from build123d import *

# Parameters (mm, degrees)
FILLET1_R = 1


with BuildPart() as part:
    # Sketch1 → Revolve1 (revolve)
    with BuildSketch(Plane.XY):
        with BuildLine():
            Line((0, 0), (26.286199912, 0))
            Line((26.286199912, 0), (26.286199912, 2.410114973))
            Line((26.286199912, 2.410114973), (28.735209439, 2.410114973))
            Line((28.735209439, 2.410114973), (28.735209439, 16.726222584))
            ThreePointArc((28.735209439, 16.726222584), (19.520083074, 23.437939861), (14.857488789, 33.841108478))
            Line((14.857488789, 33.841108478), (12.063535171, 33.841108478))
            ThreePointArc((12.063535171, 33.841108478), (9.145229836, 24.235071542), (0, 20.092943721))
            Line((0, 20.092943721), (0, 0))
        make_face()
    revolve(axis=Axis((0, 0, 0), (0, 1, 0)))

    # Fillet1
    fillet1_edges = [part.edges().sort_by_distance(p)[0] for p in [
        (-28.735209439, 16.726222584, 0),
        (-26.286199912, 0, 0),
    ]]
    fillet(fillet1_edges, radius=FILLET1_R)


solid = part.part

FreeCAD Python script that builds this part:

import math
import FreeCAD as App
import Part
import Sketcher

V = App.Vector


def edges_at(feature, points):
    """Names of the edges that pass closest to the given points."""
    edges = feature.Shape.Edges
    near = lambda p: min(range(len(edges)), key=lambda i: edges[i].distToShape(Part.Vertex(*p))[0])
    return sorted({f"Edge{near(p) + 1}" for p in points})

doc = App.newDocument("Part")
body = doc.addObject("PartDesign::Body", "Body")

# Sketch on XY plane
sketch1 = doc.addObject("Sketcher::SketchObject", "Sketch")
body.addObject(sketch1)
sketch1.AttachmentSupport = (doc.XY_Plane, [""])
sketch1.MapMode = "FlatFace"
sketch1.addGeometry([
    Part.LineSegment(V(0, 0, 0), V(26.3, 0, 0)),  # 0
    Part.LineSegment(V(26.3, 0, 0), V(26.3, 2.4, 0)),  # 1
    Part.LineSegment(V(26.3, 2.4, 0), V(28.7, 2.4, 0)),  # 2
    Part.LineSegment(V(28.7, 2.4, 0), V(28.7, 16.7, 0)),  # 3
    Part.ArcOfCircle(Part.Circle(V(36.7, 37.4, 0), V(0, 0, 1), 22.2), math.radians(-171), math.radians(-111)),  # 4
    Part.LineSegment(V(14.9, 33.8, 0), V(12.1, 33.8, 0)),  # 5
    Part.ArcOfCircle(Part.Circle(V(0, 32.3, 0), V(0, 0, 1), 12.2), math.radians(-90), math.radians(7)),  # 6
    Part.LineSegment(V(0, 20.1, 0), V(0, 0, 0)),  # 7
], False)
sketch1.addConstraint([
    Sketcher.Constraint("Coincident", 0, 2, 1, 1),
    Sketcher.Constraint("Coincident", 1, 2, 2, 1),
    Sketcher.Constraint("Coincident", 2, 2, 3, 1),
    Sketcher.Constraint("Coincident", 3, 2, 4, 2),
    Sketcher.Constraint("Coincident", 4, 1, 5, 1),
    Sketcher.Constraint("Coincident", 5, 2, 6, 2),
    Sketcher.Constraint("Coincident", 6, 1, 7, 1),
    Sketcher.Constraint("Coincident", 7, 2, 0, 1),
    Sketcher.Constraint("Horizontal", 0),
    Sketcher.Constraint("Vertical", 1),
    Sketcher.Constraint("Horizontal", 2),
    Sketcher.Constraint("Vertical", 3),
    Sketcher.Constraint("Horizontal", 5),
    Sketcher.Constraint("Vertical", 7),
    Sketcher.Constraint("Coincident", 7, 2, -1, 1),
    Sketcher.Constraint("PointOnObject", 6, 3, -2),
    Sketcher.Constraint("Radius", 6, 12.166748),
    Sketcher.Constraint("DistanceX", 0, 1, 0, 2, 26.2862),
    Sketcher.Constraint("Radius", 4, 22.174328),
    Sketcher.Constraint("DistanceX", 2, 1, 2, 2, 2.44901),
    Sketcher.Constraint("DistanceX", 5, 2, 5, 1, 2.793954),
    Sketcher.Constraint("DistanceY", 1, 1, 1, 2, 2.410115),
    Sketcher.Constraint("DistanceY", 3, 1, 3, 2, 14.316108),
    Sketcher.Constraint("DistanceY", 7, 2, 7, 1, 20.092944),
    Sketcher.Constraint("DistanceX", -1, 1, 4, 1, 14.857489),
])
revolution = doc.addObject("PartDesign::Revolution", "Revolution")
body.addObject(revolution)
revolution.Profile = sketch1
revolution.ReferenceAxis = (sketch1, ["V_Axis"])
revolution.Angle = 360
doc.recompute()

fillet = doc.addObject("PartDesign::Fillet", "Fillet")
body.addObject(fillet)
fillet.Base = (revolution, edges_at(revolution, [(-28.735, 16.726, 0), (-26.286, 0, 0)]))
fillet.Radius = 1

doc.recompute()
